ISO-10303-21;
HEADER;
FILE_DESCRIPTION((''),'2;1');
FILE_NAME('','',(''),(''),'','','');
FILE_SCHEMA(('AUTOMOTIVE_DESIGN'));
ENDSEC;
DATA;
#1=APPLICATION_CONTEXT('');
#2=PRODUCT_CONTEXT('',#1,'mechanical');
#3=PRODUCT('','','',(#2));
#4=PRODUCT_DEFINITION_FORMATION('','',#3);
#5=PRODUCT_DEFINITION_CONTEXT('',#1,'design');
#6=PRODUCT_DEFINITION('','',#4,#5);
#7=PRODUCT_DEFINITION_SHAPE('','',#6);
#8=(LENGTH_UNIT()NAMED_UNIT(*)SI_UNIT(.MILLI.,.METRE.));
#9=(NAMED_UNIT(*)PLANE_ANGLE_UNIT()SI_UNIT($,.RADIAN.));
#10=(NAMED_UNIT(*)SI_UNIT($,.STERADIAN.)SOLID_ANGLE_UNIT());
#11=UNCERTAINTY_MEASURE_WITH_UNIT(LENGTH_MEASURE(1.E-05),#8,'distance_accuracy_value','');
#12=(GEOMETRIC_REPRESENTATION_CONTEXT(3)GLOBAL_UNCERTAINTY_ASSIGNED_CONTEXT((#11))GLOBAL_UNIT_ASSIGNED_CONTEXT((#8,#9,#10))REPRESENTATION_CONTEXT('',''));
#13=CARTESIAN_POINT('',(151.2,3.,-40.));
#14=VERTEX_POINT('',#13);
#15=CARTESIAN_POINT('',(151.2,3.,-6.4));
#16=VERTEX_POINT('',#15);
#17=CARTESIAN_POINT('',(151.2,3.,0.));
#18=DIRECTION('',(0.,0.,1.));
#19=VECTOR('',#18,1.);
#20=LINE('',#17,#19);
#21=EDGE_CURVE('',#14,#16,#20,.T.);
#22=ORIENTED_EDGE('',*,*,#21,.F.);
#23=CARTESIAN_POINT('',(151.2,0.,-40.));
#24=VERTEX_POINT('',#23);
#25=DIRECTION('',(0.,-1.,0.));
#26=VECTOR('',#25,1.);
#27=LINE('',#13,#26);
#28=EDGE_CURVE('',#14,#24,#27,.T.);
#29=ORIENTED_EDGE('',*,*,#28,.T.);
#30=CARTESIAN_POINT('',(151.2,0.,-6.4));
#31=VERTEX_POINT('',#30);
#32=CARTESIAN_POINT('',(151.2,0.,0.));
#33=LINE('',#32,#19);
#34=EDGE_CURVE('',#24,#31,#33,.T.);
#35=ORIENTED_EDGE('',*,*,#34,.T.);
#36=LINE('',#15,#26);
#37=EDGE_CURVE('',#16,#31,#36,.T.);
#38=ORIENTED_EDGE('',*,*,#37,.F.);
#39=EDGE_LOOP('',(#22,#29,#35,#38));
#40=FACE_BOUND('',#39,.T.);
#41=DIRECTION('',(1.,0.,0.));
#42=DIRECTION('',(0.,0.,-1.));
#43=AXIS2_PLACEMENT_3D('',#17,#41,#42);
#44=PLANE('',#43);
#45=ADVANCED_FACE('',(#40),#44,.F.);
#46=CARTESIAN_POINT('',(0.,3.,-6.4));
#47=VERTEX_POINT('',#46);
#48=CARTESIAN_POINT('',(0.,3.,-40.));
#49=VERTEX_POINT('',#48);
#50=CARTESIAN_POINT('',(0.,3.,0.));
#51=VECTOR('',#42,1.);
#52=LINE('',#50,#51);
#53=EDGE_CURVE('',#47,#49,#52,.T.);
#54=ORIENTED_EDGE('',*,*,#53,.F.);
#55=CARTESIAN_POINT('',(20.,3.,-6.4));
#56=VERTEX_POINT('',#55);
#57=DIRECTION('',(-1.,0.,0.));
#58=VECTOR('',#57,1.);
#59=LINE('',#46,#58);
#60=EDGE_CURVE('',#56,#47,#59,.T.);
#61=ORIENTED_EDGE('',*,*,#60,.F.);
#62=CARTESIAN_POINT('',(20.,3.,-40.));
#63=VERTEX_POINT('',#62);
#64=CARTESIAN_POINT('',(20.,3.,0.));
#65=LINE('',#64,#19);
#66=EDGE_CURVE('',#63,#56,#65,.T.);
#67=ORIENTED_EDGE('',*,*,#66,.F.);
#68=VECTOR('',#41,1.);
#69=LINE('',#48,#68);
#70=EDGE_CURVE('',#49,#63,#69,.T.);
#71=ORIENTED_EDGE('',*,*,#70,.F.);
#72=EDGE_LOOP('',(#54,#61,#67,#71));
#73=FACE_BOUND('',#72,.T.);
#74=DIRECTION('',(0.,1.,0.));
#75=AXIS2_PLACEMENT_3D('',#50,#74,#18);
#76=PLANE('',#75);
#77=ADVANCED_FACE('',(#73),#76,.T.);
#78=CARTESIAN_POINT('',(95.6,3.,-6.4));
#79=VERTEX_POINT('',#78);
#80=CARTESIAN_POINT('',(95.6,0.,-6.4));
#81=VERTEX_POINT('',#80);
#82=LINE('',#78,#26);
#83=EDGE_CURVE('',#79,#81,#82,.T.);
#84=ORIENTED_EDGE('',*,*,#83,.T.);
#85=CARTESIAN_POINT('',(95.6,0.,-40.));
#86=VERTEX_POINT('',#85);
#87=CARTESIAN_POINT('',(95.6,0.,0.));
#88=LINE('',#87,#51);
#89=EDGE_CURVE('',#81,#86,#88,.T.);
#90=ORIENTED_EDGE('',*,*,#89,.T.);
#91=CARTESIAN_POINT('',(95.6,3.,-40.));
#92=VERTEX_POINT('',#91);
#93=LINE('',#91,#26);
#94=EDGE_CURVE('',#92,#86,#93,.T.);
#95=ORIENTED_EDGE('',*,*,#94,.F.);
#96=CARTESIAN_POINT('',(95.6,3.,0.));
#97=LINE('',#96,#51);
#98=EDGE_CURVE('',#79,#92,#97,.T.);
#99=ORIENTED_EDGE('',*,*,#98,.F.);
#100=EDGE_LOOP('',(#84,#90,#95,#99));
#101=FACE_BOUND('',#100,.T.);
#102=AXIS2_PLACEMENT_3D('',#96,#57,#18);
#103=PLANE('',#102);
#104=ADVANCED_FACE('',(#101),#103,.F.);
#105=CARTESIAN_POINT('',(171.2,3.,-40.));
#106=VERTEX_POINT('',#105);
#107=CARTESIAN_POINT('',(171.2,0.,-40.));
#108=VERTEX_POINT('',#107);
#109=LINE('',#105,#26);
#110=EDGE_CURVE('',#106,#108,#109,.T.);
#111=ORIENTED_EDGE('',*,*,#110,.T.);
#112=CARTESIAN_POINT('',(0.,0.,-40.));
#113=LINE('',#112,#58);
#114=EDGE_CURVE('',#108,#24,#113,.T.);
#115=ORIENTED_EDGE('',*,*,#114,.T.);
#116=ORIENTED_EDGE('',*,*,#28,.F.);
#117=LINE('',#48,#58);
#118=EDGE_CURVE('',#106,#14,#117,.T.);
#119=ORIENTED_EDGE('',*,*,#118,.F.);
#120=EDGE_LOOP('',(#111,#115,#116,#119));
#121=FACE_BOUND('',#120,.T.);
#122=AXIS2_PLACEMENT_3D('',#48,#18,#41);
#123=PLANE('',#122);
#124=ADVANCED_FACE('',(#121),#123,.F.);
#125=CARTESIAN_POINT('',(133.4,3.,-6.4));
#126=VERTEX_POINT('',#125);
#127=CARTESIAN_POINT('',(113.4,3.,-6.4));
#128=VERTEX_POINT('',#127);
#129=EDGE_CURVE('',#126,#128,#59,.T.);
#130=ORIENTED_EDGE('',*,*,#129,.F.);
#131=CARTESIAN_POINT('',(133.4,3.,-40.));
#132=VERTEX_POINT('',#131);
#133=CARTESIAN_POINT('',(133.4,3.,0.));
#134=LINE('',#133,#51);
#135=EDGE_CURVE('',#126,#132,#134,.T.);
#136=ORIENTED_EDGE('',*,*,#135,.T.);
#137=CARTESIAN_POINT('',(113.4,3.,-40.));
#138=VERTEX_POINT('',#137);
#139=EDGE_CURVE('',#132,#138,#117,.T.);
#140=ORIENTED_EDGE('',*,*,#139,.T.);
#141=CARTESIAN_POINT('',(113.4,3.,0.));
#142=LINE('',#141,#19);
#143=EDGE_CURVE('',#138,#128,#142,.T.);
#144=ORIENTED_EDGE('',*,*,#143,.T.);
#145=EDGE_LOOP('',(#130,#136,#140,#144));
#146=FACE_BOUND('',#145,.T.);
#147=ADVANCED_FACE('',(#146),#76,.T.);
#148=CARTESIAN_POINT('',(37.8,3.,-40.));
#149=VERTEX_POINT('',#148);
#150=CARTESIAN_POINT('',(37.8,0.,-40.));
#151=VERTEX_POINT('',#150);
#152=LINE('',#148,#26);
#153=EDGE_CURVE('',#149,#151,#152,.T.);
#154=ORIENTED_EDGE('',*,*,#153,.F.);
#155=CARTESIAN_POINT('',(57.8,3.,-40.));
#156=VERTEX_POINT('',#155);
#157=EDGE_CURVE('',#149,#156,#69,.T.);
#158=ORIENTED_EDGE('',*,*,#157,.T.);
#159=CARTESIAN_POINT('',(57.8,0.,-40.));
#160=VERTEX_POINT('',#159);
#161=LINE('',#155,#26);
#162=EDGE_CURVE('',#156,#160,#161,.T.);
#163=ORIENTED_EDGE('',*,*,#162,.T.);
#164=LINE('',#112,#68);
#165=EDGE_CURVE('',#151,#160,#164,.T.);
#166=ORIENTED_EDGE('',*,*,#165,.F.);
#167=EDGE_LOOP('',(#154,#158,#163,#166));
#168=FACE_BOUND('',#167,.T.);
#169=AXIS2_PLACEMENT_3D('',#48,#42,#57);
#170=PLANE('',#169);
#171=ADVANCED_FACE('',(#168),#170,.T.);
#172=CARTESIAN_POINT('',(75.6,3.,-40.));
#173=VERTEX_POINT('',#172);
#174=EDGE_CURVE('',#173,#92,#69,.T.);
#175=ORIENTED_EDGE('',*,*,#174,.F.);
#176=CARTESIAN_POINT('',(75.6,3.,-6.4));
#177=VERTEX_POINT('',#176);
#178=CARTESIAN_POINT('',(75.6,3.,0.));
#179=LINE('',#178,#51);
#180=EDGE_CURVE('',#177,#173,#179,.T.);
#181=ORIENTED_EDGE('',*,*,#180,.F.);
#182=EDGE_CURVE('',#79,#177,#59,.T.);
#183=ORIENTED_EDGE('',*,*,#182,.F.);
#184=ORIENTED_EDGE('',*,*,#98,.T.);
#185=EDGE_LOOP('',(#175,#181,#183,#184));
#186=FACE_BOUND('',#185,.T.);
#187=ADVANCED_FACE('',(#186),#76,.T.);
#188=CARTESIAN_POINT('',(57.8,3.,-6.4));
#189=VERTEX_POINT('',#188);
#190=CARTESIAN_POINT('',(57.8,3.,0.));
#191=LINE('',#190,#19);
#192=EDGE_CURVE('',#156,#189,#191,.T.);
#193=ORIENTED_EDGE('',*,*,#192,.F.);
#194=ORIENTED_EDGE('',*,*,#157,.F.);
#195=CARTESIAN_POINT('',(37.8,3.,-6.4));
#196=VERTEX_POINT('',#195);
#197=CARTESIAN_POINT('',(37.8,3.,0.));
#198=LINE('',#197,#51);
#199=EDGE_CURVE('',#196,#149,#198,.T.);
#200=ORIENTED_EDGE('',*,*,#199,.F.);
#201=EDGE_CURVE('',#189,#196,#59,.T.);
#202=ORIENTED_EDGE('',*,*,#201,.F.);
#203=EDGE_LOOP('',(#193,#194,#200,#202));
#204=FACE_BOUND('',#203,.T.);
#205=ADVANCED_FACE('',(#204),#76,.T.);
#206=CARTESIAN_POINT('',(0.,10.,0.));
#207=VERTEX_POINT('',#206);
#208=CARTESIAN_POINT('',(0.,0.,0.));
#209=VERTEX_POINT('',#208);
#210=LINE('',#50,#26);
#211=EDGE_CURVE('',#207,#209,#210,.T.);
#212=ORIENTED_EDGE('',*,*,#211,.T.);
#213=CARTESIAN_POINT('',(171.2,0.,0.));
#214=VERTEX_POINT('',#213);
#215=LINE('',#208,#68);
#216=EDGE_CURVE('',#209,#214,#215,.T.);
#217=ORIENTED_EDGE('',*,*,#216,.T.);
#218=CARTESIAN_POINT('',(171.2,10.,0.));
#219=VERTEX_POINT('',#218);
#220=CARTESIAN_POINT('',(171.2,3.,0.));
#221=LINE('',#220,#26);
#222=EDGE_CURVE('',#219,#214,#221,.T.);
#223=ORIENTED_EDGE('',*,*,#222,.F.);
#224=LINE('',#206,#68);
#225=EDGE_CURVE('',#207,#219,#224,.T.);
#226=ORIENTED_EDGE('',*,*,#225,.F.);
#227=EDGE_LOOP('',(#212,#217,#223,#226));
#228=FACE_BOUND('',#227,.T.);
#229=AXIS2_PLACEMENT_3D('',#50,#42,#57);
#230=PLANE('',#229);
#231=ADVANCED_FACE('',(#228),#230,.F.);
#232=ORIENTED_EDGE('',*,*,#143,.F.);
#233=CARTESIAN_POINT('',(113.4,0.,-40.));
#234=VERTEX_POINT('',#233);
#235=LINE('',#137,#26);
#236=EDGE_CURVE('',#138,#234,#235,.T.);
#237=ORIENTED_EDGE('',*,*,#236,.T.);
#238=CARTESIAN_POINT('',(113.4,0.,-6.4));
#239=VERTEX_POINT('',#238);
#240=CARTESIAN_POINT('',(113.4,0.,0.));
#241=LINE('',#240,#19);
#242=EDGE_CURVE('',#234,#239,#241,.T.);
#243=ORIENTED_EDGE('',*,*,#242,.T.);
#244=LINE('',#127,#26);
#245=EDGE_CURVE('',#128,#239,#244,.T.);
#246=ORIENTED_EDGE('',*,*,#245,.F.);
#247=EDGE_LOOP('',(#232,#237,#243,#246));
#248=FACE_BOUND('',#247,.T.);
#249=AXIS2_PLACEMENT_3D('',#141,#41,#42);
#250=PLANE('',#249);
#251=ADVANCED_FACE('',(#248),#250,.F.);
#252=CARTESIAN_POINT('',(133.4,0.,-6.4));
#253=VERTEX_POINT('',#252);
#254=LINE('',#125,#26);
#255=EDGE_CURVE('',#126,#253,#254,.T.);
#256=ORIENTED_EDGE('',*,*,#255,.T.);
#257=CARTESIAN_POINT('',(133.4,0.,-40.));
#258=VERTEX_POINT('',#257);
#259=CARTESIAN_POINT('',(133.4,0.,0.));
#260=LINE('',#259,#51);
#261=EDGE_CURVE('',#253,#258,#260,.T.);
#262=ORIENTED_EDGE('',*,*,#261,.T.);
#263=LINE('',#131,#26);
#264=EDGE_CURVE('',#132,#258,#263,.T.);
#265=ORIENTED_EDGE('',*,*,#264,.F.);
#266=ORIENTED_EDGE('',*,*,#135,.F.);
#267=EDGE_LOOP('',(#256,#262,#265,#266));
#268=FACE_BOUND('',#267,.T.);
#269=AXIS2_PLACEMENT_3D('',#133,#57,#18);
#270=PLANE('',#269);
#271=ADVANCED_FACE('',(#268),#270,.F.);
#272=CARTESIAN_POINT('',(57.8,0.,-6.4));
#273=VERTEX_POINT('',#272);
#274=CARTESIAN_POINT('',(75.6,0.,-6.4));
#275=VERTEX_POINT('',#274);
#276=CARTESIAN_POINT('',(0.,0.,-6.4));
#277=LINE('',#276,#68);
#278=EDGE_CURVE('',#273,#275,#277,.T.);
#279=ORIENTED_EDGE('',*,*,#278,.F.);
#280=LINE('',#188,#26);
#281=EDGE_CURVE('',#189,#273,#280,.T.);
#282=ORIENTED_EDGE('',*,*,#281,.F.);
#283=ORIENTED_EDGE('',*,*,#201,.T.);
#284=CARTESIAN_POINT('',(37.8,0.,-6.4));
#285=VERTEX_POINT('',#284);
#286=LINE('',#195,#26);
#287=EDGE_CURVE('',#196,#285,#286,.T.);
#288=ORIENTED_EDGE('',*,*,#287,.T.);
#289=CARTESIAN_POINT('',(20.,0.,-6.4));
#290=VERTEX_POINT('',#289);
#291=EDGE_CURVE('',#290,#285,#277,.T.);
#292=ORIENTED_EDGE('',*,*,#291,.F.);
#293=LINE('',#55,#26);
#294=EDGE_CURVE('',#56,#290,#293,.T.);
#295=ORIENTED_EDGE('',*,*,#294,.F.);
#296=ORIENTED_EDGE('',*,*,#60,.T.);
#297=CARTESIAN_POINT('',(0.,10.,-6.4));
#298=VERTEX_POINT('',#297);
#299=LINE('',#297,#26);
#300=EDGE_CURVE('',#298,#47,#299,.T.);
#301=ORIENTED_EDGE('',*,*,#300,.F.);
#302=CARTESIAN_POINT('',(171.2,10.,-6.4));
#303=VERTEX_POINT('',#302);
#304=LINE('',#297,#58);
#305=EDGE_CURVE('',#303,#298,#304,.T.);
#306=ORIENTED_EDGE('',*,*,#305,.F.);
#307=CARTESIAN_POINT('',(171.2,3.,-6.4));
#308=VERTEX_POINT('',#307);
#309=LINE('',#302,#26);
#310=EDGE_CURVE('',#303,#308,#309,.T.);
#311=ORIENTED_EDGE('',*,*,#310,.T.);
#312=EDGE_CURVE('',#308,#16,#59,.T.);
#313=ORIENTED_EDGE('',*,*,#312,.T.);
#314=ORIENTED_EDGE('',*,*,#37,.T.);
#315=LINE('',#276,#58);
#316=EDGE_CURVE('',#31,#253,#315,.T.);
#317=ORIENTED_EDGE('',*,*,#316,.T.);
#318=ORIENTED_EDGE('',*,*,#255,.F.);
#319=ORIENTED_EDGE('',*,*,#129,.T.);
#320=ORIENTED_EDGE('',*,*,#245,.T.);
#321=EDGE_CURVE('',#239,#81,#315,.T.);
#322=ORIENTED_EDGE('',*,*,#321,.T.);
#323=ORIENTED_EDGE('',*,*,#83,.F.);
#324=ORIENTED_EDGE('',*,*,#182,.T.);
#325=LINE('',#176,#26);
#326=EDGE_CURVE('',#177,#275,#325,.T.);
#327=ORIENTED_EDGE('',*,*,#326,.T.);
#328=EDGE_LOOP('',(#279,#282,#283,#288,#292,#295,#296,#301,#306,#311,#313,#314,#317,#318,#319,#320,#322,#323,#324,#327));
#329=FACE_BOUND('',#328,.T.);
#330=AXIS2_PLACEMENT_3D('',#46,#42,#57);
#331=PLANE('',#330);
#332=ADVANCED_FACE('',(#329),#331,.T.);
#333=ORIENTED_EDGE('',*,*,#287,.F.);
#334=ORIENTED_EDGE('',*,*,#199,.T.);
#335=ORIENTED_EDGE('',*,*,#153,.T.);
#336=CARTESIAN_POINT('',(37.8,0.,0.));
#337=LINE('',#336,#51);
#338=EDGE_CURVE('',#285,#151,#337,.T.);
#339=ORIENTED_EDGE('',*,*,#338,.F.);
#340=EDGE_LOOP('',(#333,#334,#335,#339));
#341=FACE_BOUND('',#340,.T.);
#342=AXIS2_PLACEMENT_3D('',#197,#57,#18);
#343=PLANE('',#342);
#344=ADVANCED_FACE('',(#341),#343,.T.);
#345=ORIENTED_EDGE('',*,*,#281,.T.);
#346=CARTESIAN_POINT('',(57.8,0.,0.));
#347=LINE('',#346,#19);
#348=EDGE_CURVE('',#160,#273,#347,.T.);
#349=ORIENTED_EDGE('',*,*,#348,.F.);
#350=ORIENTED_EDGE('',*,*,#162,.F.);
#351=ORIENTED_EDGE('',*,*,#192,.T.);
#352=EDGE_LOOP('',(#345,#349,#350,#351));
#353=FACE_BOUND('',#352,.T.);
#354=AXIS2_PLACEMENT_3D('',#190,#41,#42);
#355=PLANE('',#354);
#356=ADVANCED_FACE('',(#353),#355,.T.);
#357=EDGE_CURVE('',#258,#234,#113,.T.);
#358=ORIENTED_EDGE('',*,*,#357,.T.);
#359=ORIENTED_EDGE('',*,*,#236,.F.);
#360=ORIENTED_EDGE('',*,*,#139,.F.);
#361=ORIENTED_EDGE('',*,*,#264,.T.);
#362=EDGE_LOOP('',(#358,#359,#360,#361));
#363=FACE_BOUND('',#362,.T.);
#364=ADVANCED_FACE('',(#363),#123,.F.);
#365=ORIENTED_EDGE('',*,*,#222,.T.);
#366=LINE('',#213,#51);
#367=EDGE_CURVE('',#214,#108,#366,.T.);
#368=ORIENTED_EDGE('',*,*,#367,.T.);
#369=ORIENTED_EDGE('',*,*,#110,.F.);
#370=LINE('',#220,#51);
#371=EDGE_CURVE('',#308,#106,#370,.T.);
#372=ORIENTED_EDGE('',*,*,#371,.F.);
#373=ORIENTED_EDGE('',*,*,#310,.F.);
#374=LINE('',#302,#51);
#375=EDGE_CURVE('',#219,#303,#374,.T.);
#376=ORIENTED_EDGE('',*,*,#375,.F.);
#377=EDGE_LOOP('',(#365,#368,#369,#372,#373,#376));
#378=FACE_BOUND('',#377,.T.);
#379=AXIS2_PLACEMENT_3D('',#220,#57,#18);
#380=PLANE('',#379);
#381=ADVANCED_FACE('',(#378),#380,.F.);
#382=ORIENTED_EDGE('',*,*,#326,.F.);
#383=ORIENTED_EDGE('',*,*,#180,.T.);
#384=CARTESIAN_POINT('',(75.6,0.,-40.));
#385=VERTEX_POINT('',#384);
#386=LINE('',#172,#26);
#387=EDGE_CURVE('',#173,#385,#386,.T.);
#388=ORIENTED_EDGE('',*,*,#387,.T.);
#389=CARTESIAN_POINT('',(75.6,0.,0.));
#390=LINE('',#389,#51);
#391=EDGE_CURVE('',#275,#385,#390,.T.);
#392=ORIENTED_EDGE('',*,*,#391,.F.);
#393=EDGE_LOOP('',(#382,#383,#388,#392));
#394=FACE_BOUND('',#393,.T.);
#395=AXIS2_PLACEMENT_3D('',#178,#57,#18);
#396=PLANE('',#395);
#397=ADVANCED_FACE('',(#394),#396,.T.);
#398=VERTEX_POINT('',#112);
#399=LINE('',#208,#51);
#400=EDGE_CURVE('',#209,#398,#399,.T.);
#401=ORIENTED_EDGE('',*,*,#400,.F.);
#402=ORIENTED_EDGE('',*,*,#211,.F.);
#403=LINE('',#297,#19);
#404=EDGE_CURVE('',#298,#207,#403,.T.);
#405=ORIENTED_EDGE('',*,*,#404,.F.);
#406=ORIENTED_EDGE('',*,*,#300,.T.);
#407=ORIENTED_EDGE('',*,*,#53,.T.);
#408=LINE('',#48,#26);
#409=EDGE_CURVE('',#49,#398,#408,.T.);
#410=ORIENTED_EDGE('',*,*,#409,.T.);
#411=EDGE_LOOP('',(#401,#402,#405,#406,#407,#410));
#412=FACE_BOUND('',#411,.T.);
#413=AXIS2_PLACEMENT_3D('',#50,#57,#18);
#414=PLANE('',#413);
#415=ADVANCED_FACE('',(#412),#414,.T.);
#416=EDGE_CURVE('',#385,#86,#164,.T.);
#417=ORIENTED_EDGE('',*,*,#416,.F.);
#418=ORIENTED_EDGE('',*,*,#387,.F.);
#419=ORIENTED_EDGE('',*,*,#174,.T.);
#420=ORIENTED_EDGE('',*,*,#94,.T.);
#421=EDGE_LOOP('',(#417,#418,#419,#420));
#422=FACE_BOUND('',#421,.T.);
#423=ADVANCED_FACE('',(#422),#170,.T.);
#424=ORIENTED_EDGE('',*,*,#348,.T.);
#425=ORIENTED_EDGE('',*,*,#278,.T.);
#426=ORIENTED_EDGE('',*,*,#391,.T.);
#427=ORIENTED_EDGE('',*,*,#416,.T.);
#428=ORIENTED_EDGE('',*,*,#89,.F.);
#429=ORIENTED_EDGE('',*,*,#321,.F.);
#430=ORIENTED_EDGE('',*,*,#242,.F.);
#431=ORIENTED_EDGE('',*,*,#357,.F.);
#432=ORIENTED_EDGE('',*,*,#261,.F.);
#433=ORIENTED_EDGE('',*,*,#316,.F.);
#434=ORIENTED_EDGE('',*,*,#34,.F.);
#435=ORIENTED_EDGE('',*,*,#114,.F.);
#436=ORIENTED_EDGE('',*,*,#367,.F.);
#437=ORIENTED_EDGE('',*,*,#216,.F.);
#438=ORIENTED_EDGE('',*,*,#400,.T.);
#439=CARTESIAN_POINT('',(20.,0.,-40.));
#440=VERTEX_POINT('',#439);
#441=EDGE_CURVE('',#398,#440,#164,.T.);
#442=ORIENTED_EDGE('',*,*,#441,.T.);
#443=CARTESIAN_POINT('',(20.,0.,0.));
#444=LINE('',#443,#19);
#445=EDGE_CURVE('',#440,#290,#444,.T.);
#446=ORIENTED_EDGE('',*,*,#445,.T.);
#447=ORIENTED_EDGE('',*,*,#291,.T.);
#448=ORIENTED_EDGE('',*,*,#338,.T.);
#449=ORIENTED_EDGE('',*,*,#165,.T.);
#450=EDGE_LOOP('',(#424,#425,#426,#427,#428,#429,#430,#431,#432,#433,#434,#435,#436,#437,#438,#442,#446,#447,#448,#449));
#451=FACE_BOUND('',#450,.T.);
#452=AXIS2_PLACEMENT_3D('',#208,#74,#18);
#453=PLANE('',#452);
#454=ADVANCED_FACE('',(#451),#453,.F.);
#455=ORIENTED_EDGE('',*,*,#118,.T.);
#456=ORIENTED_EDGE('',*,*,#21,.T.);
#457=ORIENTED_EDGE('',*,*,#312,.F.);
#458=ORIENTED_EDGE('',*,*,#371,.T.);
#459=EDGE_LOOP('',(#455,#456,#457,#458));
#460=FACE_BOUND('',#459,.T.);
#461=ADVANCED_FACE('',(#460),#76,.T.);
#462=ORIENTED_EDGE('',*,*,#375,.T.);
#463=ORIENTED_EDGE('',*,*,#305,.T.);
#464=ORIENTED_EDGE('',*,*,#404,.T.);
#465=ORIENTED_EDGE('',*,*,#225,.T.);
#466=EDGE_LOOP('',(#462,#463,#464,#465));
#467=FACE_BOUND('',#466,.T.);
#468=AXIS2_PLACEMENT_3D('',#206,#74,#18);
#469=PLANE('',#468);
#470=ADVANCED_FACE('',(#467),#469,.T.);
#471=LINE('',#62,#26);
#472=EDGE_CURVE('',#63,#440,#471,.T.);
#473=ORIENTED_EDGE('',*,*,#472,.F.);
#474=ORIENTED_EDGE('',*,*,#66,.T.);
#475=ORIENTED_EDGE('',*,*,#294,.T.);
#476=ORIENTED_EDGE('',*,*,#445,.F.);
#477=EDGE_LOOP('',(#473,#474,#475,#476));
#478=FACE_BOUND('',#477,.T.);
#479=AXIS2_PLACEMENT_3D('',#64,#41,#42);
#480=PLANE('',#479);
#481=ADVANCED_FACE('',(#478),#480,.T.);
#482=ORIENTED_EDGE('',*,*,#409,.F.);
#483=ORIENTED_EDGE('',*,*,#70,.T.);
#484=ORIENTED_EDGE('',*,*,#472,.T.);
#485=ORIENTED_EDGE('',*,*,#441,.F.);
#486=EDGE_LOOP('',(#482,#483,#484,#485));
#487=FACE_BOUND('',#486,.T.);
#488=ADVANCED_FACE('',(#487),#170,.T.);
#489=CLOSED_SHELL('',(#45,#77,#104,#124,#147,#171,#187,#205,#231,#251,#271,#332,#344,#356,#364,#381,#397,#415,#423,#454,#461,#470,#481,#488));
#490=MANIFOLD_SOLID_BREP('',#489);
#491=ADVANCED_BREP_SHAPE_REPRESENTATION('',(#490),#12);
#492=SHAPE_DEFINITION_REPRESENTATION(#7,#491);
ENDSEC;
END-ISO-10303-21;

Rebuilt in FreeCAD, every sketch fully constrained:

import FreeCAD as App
import Part
import Sketcher
Q = App.Units.Quantity


def add_polygon(sketch, points):
    """Adds a closed chain of lines whose ends are joined by coincident constraints."""
    first, n = sketch.GeometryCount, len(points)
    for a, b in zip(points, points[1:] + points[:1]):
        sketch.addGeometry(Part.LineSegment(App.Vector(*a, 0), App.Vector(*b, 0)), False)
    for i in range(n):
        sketch.addConstraint(Sketcher.Constraint("Coincident", first + i, 2, first + (i + 1) % n, 1))

doc = App.newDocument("Part")
body = doc.addObject("PartDesign::Body", "Body")

sketch1 = body.newObject("Sketcher::SketchObject", "Sketch")
sketch1.AttachmentSupport = (doc.getObject("XZ_Plane"), [""])
sketch1.MapMode = "FlatFace"
add_polygon(sketch1, [(0, -40), (0, 0), (171, 0), (171, -40), (151, -40), (151, -6), (133, -6), (133, -40), (113, -40), (113, -6), (96, -6), (96, -40), (76, -40), (76, -6), (58, -6), (58, -40), (38, -40), (38, -6), (20, -6), (20, -40)])
sketch1.addConstraint([
    Sketcher.Constraint("Vertical", 0),
    Sketcher.Constraint("Horizontal", 1),
    Sketcher.Constraint("Vertical", 2),
    Sketcher.Constraint("Horizontal", 3),
    Sketcher.Constraint("Vertical", 4),
    Sketcher.Constraint("Horizontal", 5),
    Sketcher.Constraint("Vertical", 6),
    Sketcher.Constraint("Horizontal", 7),
    Sketcher.Constraint("Vertical", 8),
    Sketcher.Constraint("Horizontal", 9),
    Sketcher.Constraint("Vertical", 10),
    Sketcher.Constraint("Horizontal", 11),
    Sketcher.Constraint("Vertical", 12),
    Sketcher.Constraint("Horizontal", 13),
    Sketcher.Constraint("Vertical", 14),
    Sketcher.Constraint("Horizontal", 15),
    Sketcher.Constraint("Vertical", 16),
    Sketcher.Constraint("Horizontal", 17),
    Sketcher.Constraint("Vertical", 18),
    Sketcher.Constraint("Horizontal", 19),
    Sketcher.Constraint("Coincident", 0, 2, -1, 1),
    Sketcher.Constraint("Horizontal", 3, 2, 6, 2),
    Sketcher.Constraint("Horizontal", 5, 2, 8, 2),
    Sketcher.Constraint("Horizontal", 7, 2, 10, 2),
    Sketcher.Constraint("Horizontal", 9, 2, 12, 2),
    Sketcher.Constraint("Horizontal", 11, 2, 14, 2),
    Sketcher.Constraint("Horizontal", 13, 2, 16, 2),
    Sketcher.Constraint("Horizontal", 15, 2, 18, 2),
    Sketcher.Constraint("Equal", 3, 7),
    Sketcher.Constraint("Equal", 5, 9),
    Sketcher.Constraint("Equal", 7, 11),
    Sketcher.Constraint("Equal", 9, 13),
    Sketcher.Constraint("Equal", 11, 15),
    Sketcher.Constraint("Equal", 13, 17),
    Sketcher.Constraint("Equal", 15, 19),
    Sketcher.Constraint("DistanceX", 3, 2, 3, 1, Q("20 mm")),
    Sketcher.Constraint("DistanceY", 0, 1, 0, 2, Q("40 mm")),
    Sketcher.Constraint("DistanceX", 1, 1, 1, 2, Q("171.2 mm")),
    Sketcher.Constraint("DistanceY", 4, 1, 4, 2, Q("33.6 mm")),
])
pad1 = body.newObject("PartDesign::Pad", "Pad")
pad1.Profile = sketch1
pad1.Length = 3
pad1.Reversed = True

sketch2 = body.newObject("Sketcher::SketchObject", "Sketch001")
sketch2.AttachmentSupport = (doc.getObject("XZ_Plane"), [""])
sketch2.MapMode = "FlatFace"
sketch2.AttachmentOffset = App.Placement(App.Vector(0, 0, -3), App.Rotation())
add_polygon(sketch2, [(0, -6), (0, 0), (171, 0), (171, -6)])
sketch2.addConstraint([
    Sketcher.Constraint("Vertical", 0),
    Sketcher.Constraint("Horizontal", 1),
    Sketcher.Constraint("Vertical", 2),
    Sketcher.Constraint("Horizontal", 3),
    Sketcher.Constraint("Coincident", 0, 2, -1, 1),
    Sketcher.Constraint("DistanceX", 1, 1, 1, 2, Q("171.2 mm")),
    Sketcher.Constraint("DistanceY", 0, 1, 0, 2, Q("6.4 mm")),
])
pad2 = body.newObject("PartDesign::Pad", "Pad001")
pad2.Profile = sketch2
pad2.Length = 7
pad2.Reversed = True

doc.recompute()
